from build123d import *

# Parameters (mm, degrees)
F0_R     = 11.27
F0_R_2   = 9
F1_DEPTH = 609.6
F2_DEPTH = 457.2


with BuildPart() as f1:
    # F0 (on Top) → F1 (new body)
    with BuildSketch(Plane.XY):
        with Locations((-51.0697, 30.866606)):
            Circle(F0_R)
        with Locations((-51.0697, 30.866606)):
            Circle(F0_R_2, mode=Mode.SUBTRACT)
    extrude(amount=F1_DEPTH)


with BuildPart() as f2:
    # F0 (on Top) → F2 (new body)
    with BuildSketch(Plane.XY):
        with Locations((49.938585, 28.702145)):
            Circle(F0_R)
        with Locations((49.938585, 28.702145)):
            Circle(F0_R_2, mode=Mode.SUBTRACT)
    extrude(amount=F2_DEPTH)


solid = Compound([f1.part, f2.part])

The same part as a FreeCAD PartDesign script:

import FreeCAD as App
import Part
import Sketcher

V = App.Vector

doc = App.newDocument("Part")
params = doc.addObject("Spreadsheet::Sheet", "Params")
for row, (alias, value) in enumerate([
    ("pad1_length", "24 in"),
    ("pad2_length", "18 in"),
], start=1):
    params.set(f"A{row}", alias)
    params.set(f"B{row}", "=" + value)
    params.setAlias(f"B{row}", alias)

body = doc.addObject("PartDesign::Body", "Body")

# Sketch on XY plane
sketch1 = body.newObject("Sketcher::SketchObject", "Sketch")
sketch1.AttachmentSupport = (doc.getObject("XY_Plane"), [""])
sketch1.MapMode = "FlatFace"
sketch1.addGeometry([
    Part.Circle(V(-51, 31, 0), V(0, 0, 1), 11),
    Part.Circle(V(-51, 31, 0), V(0, 0, 1), 9),
], False)
sketch1.addConstraint([
    Sketcher.Constraint("Coincident", 1, 3, 0, 3),
    Sketcher.Constraint("Diameter", 0, 22.54),
    Sketcher.Constraint("Diameter", 1, 18.0),
    Sketcher.Constraint("DistanceX", 0, 3, -1, 1, 51.0697),
    Sketcher.Constraint("DistanceY", -1, 1, 0, 3, 30.866606),
])
pad1 = body.newObject("PartDesign::Pad", "Pad")
pad1.Profile = sketch1
pad1.setExpression("Length", "Params.pad1_length")
body2 = doc.addObject("PartDesign::Body", "Body001")

# Sketch on XY plane
sketch2 = body2.newObject("Sketcher::SketchObject", "Sketch001")
sketch2.AttachmentSupport = (doc.getObject("XY_Plane001"), [""])
sketch2.MapMode = "FlatFace"
sketch2.addGeometry([
    Part.Circle(V(50, 29, 0), V(0, 0, 1), 11),
    Part.Circle(V(50, 29, 0), V(0, 0, 1), 9),
], False)
sketch2.addConstraint([
    Sketcher.Constraint("Coincident", 1, 3, 0, 3),
    Sketcher.Constraint("Diameter", 0, 22.54),
    Sketcher.Constraint("Diameter", 1, 18.0),
    Sketcher.Constraint("DistanceX", -1, 1, 0, 3, 49.938585),
    Sketcher.Constraint("DistanceY", -1, 1, 0, 3, 28.702145),
])
pad2 = body2.newObject("PartDesign::Pad", "Pad001")
pad2.Profile = sketch2
pad2.setExpression("Length", "Params.pad2_length")

doc.recompute()
